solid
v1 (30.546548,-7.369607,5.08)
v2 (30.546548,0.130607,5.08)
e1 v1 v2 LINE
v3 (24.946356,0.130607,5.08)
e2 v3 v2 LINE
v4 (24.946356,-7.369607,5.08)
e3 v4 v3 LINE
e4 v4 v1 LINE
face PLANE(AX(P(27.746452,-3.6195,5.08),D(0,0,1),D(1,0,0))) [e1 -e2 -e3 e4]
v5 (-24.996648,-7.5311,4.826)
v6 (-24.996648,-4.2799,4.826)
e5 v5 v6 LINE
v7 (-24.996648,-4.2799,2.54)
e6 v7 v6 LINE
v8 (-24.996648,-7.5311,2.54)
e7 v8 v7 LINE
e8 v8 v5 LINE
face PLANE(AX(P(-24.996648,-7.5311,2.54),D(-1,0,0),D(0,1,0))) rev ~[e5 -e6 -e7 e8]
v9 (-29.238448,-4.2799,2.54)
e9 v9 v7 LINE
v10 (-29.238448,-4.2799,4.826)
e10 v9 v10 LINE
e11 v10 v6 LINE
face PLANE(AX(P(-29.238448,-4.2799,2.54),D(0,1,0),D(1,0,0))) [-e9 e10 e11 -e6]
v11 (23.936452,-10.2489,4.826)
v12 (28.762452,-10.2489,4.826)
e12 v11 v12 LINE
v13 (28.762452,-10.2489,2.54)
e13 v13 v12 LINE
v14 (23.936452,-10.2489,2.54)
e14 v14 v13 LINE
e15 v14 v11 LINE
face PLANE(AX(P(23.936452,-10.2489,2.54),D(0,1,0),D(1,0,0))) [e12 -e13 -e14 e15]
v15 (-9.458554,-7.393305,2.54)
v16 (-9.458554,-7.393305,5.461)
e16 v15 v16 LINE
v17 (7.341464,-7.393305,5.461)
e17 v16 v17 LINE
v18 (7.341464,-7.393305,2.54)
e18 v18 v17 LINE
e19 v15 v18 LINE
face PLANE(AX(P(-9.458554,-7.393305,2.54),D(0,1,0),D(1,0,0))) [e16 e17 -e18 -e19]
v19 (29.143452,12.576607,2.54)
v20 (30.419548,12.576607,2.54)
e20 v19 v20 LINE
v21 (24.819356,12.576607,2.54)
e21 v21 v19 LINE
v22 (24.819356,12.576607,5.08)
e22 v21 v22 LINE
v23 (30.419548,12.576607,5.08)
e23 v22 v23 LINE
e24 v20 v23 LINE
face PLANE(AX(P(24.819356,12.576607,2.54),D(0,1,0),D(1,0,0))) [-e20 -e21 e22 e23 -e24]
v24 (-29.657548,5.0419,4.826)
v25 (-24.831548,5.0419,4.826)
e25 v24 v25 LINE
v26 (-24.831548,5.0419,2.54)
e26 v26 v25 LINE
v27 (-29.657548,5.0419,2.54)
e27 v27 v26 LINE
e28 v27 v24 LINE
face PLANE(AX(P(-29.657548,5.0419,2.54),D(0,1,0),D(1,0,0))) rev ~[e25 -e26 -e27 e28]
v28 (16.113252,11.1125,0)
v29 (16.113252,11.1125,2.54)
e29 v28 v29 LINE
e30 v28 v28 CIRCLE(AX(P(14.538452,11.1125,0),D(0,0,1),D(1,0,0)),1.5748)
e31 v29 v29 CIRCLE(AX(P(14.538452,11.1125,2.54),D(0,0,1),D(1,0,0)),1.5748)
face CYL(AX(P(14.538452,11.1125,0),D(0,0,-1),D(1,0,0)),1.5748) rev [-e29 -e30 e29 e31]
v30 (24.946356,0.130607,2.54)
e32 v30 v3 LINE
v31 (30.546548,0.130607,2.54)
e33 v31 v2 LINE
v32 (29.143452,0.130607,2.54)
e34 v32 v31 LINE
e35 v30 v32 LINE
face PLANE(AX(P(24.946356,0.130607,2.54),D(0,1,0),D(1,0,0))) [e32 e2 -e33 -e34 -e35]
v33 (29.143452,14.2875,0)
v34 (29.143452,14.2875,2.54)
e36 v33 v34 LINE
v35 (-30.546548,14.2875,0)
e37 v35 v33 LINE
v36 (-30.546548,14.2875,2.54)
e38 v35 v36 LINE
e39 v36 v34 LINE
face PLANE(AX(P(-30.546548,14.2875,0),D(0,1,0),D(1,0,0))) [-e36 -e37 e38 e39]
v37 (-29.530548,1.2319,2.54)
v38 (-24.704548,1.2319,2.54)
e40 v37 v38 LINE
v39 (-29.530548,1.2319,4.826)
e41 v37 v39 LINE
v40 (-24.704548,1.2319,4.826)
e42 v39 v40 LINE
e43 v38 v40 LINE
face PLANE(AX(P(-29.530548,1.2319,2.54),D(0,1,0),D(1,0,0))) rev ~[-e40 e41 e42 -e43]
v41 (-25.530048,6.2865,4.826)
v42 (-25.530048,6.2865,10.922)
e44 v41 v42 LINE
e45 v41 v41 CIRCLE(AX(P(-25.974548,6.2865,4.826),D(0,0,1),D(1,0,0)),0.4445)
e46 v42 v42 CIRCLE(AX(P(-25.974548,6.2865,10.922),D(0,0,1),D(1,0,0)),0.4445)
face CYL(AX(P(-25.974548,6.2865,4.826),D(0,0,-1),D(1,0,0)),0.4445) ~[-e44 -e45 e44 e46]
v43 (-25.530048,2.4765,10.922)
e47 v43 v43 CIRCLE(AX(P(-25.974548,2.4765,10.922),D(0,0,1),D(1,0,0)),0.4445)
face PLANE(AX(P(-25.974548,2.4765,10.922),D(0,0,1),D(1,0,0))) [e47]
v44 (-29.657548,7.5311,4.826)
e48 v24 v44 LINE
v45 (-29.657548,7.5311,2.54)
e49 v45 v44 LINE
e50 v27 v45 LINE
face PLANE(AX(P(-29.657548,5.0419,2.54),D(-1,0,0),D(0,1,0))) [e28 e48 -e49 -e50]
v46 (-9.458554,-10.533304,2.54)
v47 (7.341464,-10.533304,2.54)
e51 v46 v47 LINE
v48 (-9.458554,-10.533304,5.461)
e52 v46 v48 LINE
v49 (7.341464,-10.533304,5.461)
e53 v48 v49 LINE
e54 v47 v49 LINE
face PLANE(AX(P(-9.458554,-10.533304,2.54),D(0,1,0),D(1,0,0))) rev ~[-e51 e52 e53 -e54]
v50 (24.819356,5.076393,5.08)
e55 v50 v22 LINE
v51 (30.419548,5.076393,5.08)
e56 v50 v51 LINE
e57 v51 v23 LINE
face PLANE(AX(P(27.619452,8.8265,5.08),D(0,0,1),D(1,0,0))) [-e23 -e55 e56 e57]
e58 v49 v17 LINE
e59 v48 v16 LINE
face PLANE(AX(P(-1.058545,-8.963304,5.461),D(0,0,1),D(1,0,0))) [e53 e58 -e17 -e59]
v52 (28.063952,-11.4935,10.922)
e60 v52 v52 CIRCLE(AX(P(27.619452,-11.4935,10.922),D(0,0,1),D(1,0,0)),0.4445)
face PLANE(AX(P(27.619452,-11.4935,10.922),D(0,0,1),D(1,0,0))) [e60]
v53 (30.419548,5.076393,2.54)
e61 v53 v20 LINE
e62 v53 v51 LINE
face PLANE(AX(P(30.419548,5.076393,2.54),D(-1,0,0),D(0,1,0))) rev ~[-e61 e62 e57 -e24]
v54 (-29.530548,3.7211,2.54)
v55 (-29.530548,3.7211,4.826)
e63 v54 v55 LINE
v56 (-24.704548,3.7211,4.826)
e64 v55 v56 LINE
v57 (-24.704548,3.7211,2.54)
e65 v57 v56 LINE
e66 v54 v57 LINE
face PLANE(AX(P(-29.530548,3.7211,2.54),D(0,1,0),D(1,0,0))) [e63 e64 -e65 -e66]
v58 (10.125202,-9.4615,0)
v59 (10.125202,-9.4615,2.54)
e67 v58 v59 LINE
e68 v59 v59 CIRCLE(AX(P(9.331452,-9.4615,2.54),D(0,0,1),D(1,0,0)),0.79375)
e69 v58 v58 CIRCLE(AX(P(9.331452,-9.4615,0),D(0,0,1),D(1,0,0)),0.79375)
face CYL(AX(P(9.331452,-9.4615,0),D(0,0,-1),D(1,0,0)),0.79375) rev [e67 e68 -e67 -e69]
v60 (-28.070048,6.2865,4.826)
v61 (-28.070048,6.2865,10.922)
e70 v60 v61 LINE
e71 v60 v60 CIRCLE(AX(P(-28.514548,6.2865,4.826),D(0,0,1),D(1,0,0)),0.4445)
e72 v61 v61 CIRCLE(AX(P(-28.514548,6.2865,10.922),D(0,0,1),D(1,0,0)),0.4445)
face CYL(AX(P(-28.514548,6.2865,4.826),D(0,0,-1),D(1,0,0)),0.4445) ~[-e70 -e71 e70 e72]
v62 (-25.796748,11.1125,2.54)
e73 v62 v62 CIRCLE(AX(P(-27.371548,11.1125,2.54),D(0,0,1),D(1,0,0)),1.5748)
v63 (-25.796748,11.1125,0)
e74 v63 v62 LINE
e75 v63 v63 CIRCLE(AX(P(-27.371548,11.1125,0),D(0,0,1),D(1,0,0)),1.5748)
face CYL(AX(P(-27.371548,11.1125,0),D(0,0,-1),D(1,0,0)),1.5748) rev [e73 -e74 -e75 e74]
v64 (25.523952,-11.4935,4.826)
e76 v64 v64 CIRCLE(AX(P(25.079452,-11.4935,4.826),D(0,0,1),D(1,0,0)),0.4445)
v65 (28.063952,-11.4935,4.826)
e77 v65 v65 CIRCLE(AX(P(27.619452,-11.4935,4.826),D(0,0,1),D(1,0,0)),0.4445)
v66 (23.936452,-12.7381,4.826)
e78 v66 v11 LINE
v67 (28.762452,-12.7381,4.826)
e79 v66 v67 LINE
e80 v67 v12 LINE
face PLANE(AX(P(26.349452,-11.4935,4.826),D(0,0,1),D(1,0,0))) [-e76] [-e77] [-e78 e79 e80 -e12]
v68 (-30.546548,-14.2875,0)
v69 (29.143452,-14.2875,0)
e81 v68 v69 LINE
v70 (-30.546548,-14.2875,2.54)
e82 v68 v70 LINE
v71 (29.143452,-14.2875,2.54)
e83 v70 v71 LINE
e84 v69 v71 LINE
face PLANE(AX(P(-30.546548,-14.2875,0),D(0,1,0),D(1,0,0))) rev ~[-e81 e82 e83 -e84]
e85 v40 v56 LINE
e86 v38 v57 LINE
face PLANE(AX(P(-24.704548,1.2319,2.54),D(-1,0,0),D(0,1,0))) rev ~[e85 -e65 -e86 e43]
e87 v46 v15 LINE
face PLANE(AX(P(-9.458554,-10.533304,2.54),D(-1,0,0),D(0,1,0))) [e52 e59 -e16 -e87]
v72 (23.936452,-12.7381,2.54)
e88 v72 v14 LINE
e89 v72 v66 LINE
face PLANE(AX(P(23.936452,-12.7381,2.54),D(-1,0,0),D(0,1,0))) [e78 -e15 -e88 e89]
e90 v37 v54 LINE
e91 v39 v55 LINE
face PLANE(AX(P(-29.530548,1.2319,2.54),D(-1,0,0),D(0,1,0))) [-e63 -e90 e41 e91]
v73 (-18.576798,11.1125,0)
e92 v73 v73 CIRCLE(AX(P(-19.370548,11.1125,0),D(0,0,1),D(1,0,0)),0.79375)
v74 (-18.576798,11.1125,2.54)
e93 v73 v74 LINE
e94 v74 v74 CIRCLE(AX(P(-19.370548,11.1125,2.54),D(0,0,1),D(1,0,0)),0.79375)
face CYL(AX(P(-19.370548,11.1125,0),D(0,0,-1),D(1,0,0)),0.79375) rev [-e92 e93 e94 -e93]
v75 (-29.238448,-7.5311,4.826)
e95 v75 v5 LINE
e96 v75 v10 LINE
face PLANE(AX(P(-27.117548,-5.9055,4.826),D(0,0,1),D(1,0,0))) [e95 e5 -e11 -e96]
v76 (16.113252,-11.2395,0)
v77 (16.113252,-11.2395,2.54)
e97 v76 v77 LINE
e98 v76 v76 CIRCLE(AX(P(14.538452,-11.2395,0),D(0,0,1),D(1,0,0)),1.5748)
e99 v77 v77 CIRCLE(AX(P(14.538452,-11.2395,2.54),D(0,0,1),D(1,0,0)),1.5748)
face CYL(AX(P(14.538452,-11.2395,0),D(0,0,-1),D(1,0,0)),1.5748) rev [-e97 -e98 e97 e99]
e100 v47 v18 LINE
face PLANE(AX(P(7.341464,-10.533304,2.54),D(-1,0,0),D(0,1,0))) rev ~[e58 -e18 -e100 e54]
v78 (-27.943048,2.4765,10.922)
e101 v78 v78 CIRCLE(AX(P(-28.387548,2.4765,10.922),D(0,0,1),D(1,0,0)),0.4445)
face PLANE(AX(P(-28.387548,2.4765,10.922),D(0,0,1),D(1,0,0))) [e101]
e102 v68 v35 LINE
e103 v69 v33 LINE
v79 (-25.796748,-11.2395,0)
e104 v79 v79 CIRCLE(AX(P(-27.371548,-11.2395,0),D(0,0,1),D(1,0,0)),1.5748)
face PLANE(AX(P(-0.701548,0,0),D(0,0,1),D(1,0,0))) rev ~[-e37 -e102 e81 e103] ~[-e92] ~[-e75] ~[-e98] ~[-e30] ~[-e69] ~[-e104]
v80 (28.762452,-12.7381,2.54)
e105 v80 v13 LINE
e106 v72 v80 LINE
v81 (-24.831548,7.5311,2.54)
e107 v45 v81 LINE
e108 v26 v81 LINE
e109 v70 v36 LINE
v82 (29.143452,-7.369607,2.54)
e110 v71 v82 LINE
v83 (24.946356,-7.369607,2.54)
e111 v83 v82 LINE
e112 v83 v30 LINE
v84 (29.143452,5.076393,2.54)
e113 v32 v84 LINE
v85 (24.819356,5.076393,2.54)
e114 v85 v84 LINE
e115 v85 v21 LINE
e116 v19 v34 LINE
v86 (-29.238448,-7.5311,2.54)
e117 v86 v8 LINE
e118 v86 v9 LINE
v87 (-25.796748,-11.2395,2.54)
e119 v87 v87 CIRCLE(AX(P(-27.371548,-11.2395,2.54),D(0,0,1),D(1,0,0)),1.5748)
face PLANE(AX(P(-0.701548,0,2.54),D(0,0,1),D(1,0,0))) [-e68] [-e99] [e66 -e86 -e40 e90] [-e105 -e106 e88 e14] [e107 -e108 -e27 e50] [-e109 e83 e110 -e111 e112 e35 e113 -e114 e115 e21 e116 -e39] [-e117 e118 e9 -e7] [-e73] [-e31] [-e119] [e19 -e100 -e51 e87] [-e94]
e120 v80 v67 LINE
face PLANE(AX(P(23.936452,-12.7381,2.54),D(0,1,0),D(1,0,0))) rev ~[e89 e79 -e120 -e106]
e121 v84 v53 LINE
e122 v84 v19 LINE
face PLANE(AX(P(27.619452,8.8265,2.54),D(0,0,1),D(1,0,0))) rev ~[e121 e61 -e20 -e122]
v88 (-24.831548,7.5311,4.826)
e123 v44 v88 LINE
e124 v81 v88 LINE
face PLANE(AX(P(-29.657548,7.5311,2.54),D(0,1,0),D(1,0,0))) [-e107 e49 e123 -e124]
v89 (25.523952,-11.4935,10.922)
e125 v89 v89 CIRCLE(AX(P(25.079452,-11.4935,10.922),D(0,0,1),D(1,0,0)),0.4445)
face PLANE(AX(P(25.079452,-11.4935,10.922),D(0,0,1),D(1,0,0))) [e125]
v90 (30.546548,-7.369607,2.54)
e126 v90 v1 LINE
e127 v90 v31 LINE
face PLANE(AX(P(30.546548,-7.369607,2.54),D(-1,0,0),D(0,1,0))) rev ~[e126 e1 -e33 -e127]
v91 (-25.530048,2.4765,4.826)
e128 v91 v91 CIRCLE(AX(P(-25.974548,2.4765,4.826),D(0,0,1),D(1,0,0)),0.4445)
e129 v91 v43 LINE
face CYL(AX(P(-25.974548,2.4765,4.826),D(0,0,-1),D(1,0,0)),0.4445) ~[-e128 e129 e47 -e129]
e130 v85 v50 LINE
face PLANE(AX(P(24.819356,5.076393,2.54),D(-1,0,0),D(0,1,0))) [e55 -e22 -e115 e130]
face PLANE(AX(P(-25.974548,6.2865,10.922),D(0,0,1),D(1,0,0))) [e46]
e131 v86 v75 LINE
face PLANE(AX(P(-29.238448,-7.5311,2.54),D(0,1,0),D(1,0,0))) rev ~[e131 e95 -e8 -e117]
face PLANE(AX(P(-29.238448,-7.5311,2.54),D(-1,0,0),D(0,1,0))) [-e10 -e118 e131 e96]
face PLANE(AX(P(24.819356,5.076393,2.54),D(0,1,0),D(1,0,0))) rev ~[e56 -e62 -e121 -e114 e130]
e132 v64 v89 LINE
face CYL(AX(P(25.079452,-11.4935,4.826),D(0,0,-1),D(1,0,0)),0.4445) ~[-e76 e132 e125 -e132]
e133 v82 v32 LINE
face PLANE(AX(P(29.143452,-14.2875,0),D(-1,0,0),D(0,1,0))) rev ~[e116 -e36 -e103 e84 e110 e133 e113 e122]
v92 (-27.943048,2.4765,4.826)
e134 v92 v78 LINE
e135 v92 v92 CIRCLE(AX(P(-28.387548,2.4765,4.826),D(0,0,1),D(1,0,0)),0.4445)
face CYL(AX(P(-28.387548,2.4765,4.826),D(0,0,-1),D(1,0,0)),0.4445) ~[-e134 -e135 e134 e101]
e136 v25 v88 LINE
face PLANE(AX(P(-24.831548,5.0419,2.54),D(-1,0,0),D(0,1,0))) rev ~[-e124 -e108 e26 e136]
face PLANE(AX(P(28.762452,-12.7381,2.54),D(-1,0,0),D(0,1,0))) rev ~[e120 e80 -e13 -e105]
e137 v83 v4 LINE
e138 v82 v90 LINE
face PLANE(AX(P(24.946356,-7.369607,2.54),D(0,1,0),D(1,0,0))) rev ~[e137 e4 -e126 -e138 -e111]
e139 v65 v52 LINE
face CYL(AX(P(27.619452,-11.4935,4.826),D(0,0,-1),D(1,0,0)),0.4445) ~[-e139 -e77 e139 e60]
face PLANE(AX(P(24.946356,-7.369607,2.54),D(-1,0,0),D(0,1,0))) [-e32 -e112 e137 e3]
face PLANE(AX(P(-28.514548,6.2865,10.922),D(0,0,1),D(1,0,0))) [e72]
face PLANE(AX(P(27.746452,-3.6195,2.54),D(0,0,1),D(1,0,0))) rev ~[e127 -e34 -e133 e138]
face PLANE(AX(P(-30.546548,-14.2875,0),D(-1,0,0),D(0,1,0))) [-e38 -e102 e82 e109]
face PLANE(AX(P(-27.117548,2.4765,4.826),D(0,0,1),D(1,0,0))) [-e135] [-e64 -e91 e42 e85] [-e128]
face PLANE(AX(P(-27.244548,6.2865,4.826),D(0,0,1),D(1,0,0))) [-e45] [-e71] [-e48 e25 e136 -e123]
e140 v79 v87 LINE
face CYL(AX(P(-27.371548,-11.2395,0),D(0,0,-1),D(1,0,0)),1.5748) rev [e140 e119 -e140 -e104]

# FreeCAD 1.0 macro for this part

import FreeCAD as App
import Part
import Sketcher

V = App.Vector
Q = App.Units.Quantity


def add_polygon(sketch, points):
    """Adds a closed chain of lines whose ends are joined by coincident constraints."""
    first, n = sketch.GeometryCount, len(points)
    for a, b in zip(points, points[1:] + points[:1]):
        sketch.addGeometry(Part.LineSegment(App.Vector(*a, 0), App.Vector(*b, 0)), False)
    for i in range(n):
        sketch.addConstraint(Sketcher.Constraint("Coincident", first + i, 2, first + (i + 1) % n, 1))

doc = App.newDocument("Part")
body = doc.addObject("PartDesign::Body", "Body")

sketch1 = body.newObject("Sketcher::SketchObject", "Sketch")
sketch1.AttachmentSupport = (doc.getObject("XY_Plane"), [""])
sketch1.MapMode = "FlatFace"
add_polygon(sketch1, [(-30.5, 14.3), (-30.5, -14.3), (29.1, -14.3), (29.1, 14.3)])
sketch1.addGeometry(Part.Circle(V(-27.4, -11.2, 0), V(0, 0, 1), 1.6), False)
sketch1.addGeometry(Part.Circle(V(14.5, -11.2, 0), V(0, 0, 1), 1.6), False)
sketch1.addGeometry(Part.Circle(V(9.3, -9.5, 0), V(0, 0, 1), 0.8), False)
sketch1.addGeometry(Part.Circle(V(-27.4, 11.1, 0), V(0, 0, 1), 1.6), False)
sketch1.addGeometry(Part.Circle(V(-19.4, 11.1, 0), V(0, 0, 1), 0.8), False)
sketch1.addGeometry(Part.Circle(V(14.5, 11.1, 0), V(0, 0, 1), 1.6), False)
sketch1.addConstraint(Sketcher.Constraint("Vertical", 0))
sketch1.addConstraint(Sketcher.Constraint("Horizontal", 1))
sketch1.addConstraint(Sketcher.Constraint("Vertical", 2))
sketch1.addConstraint(Sketcher.Constraint("Horizontal", 3))
sketch1.addConstraint(Sketcher.Constraint("Equal", 4, 5))
sketch1.addConstraint(Sketcher.Constraint("Equal", 5, 7))
sketch1.addConstraint(Sketcher.Constraint("Equal", 6, 8))
sketch1.addConstraint(Sketcher.Constraint("Equal", 7, 9))
sketch1.addConstraint(Sketcher.Constraint("Horizontal", 4, 3, 5, 3))
sketch1.addConstraint(Sketcher.Constraint("Horizontal", 7, 3, 8, 3))
sketch1.addConstraint(Sketcher.Constraint("Horizontal", 8, 3, 9, 3))
sketch1.addConstraint(Sketcher.Constraint("Vertical", 4, 3, 7, 3))
sketch1.addConstraint(Sketcher.Constraint("Vertical", 5, 3, 9, 3))
sketch1.addConstraint(Sketcher.Constraint("Diameter", 4, Q("0.124 in")))
sketch1.addConstraint(Sketcher.Constraint("Diameter", 6, Q("0.0625 in")))
sketch1.addConstraint(Sketcher.Constraint("DistanceY", 0, 2, 7, 3, Q("1 in")))
sketch1.addConstraint(Sketcher.Constraint("DistanceX", 1, 1, 1, 2, Q("2.35 in")))
sketch1.addConstraint(Sketcher.Constraint("DistanceY", 0, 2, 0, 1, Q("1.125 in")))
sketch1.addConstraint(Sketcher.Constraint("DistanceX", 4, 3, 5, 3, Q("1.65 in")))
sketch1.addConstraint(Sketcher.Constraint("DistanceY", 5, 3, 6, 3, Q("0.07 in")))
sketch1.addConstraint(Sketcher.Constraint("DistanceY", 4, 3, 7, 3, Q("0.88 in")))
sketch1.addConstraint(Sketcher.Constraint("DistanceX", 8, 3, 6, 3, Q("1.13 in")))
sketch1.addConstraint(Sketcher.Constraint("DistanceX", 0, 2, 8, 3, Q("0.44 in")))
sketch1.addConstraint(Sketcher.Constraint("DistanceY", -1, 1, 7, 3, Q("0.4375 in")))
sketch1.addConstraint(Sketcher.Constraint("DistanceX", 6, 3, 5, 3, Q("0.205 in")))
sketch1.addConstraint(Sketcher.Constraint("DistanceX", 4, 3, -1, 1, 27.371548))
pad1 = body.newObject("PartDesign::Pad", "Pad")
pad1.Profile = sketch1
pad1.Length = Q("0.1 in")

sketch2 = body.newObject("Sketcher::SketchObject", "Sketch001")
sketch2.AttachmentSupport = (doc.getObject("XY_Plane"), [""])
sketch2.MapMode = "FlatFace"
sketch2.AttachmentOffset = App.Placement(V(0, 0, 0.1 * 25.4), App.Rotation())
add_polygon(sketch2, [(25, 13), (25, 5), (30, 5), (30, 13)])
add_polygon(sketch2, [(25, 0), (25, -7), (31, -7), (31, 0)])
sketch2.addConstraint(Sketcher.Constraint("Vertical", 0))
sketch2.addConstraint(Sketcher.Constraint("Horizontal", 1))
sketch2.addConstraint(Sketcher.Constraint("Vertical", 2))
sketch2.addConstraint(Sketcher.Constraint("Horizontal", 3))
sketch2.addConstraint(Sketcher.Constraint("Vertical", 4))
sketch2.addConstraint(Sketcher.Constraint("Horizontal", 5))
sketch2.addConstraint(Sketcher.Constraint("Vertical", 6))
sketch2.addConstraint(Sketcher.Constraint("Horizontal", 7))
sketch2.addConstraint(Sketcher.Constraint("Equal", 3, 5))
sketch2.addConstraint(Sketcher.Constraint("Equal", 2, 4))
sketch2.addConstraint(Sketcher.Constraint("DistanceY", 4, 2, 0, 2, Q("0.49 in")))
sketch2.addConstraint(Sketcher.Constraint("DistanceX", 0, 2, 4, 2, Q("0.005 in")))
sketch2.addConstraint(Sketcher.Constraint("DistanceX", 1, 1, 1, 2, 5.600192))
sketch2.addConstraint(Sketcher.Constraint("DistanceY", 0, 2, 0, 1, 7.500214))
sketch2.addConstraint(Sketcher.Constraint("DistanceX", -1, 1, 5, 2, 30.546548))
sketch2.addConstraint(Sketcher.Constraint("DistanceY", -1, 1, 0, 2, 5.076393))
pad2 = body.newObject("PartDesign::Pad", "Pad001")
pad2.Profile = sketch2
pad2.Length = Q("0.1 in")

sketch3 = body.newObject("Sketcher::SketchObject", "Sketch002")
sketch3.AttachmentSupport = (doc.getObject("XY_Plane"), [""])
sketch3.MapMode = "FlatFace"
sketch3.AttachmentOffset = App.Placement(V(0, 0, 0.1 * 25.4), App.Rotation())
add_polygon(sketch3, [(-9.5, -7.4), (-9.5, -10.5), (7.3, -10.5), (7.3, -7.4)])
sketch3.addConstraint(Sketcher.Constraint("Vertical", 0))
sketch3.addConstraint(Sketcher.Constraint("Horizontal", 1))
sketch3.addConstraint(Sketcher.Constraint("Vertical", 2))
sketch3.addConstraint(Sketcher.Constraint("Horizontal", 3))
sketch3.addConstraint(Sketcher.Constraint("DistanceY", 0, 2, 0, 1, 3.139999))
sketch3.addConstraint(Sketcher.Constraint("DistanceX", 1, 1, 1, 2, 16.800018))
sketch3.addConstraint(Sketcher.Constraint("DistanceX", 0, 2, -1, 1, 9.458554))
sketch3.addConstraint(Sketcher.Constraint("DistanceY", 0, 2, -1, 1, 10.533304))
pad3 = body.newObject("PartDesign::Pad", "Pad002")
pad3.Profile = sketch3
pad3.Length = Q("0.115 in")

sketch4 = body.newObject("Sketcher::SketchObject", "Sketch003")
sketch4.AttachmentSupport = (doc.getObject("XY_Plane"), [""])
sketch4.MapMode = "FlatFace"
sketch4.AttachmentOffset = App.Placement(V(0, 0, 0.1 * 25.4), App.Rotation())
add_polygon(sketch4, [(23.9, -10.2), (23.9, -12.7), (28.8, -12.7), (28.8, -10.2)])
add_polygon(sketch4, [(-29.7, 7.5), (-29.7, 5), (-24.8, 5), (-24.8, 7.5)])
add_polygon(sketch4, [(-29.5, 3.7), (-29.5, 1.2), (-24.7, 1.2), (-24.7, 3.7)])
add_polygon(sketch4, [(-29.2, -4.3), (-29.2, -7.5), (-25, -7.5), (-25, -4.3)])
sketch4.addConstraint(Sketcher.Constraint("Vertical", 0))
sketch4.addConstraint(Sketcher.Constraint("Horizontal", 1))
sketch4.addConstraint(Sketcher.Constraint("Vertical", 2))
sketch4.addConstraint(Sketcher.Constraint("Horizontal", 3))
sketch4.addConstraint(Sketcher.Constraint("Vertical", 4))
sketch4.addConstraint(Sketcher.Constraint("Horizontal", 5))
sketch4.addConstraint(Sketcher.Constraint("Vertical", 6))
sketch4.addConstraint(Sketcher.Constraint("Horizontal", 7))
sketch4.addConstraint(Sketcher.Constraint("Vertical", 8))
sketch4.addConstraint(Sketcher.Constraint("Horizontal", 9))
sketch4.addConstraint(Sketcher.Constraint("Vertical", 10))
sketch4.addConstraint(Sketcher.Constraint("Horizontal", 11))
sketch4.addConstraint(Sketcher.Constraint("Vertical", 12))
sketch4.addConstraint(Sketcher.Constraint("Horizontal", 13))
sketch4.addConstraint(Sketcher.Constraint("Vertical", 14))
sketch4.addConstraint(Sketcher.Constraint("Horizontal", 15))
sketch4.addConstraint(Sketcher.Constraint("Equal", 3, 5))
sketch4.addConstraint(Sketcher.Constraint("Equal", 7, 9))
sketch4.addConstraint(Sketcher.Constraint("Equal", 2, 4))
sketch4.addConstraint(Sketcher.Constraint("Equal", 6, 8))
sketch4.addConstraint(Sketcher.Constraint("DistanceX", 1, 1, 1, 2, Q("0.19 in")))
sketch4.addConstraint(Sketcher.Constraint("DistanceY", 0, 2, 4, 2, Q("0.7 in")))
sketch4.addConstraint(Sketcher.Constraint("DistanceX", 4, 2, 2, 2, Q("2.3 in")))
sketch4.addConstraint(Sketcher.Constraint("DistanceX", 13, 1, 13, 2, Q("0.167 in")))
sketch4.addConstraint(Sketcher.Constraint("DistanceY", 0, 2, 0, 1, Q("0.098 in")))
sketch4.addConstraint(Sketcher.Constraint("DistanceY", 12, 2, 12, 1, Q("0.128 in")))
sketch4.addConstraint(Sketcher.Constraint("DistanceY", 8, 2, 4, 2, Q("0.15 in")))
sketch4.addConstraint(Sketcher.Constraint("DistanceX", 4, 2, 8, 2, Q("0.005 in")))
sketch4.addConstraint(Sketcher.Constraint("DistanceY", 12, 2, 8, 2, Q("0.345 in")))
sketch4.addConstraint(Sketcher.Constraint("DistanceY", 0, 2, -1, 1, Q("0.5015 in")))
sketch4.addConstraint(Sketcher.Constraint("DistanceX", 8, 2, 12, 2, Q("0.0115 in")))
sketch4.addConstraint(Sketcher.Constraint("DistanceX", -1, 1, 0, 2, 23.936452))
pad4 = body.newObject("PartDesign::Pad", "Pad003")
pad4.Profile = sketch4
pad4.Length = Q("0.09 in")

sketch5 = body.newObject("Sketcher::SketchObject", "Sketch004")
sketch5.AttachmentSupport = (doc.getObject("XY_Plane"), [""])
sketch5.MapMode = "FlatFace"
sketch5.AttachmentOffset = App.Placement(V(0, 0, 0.19 * 25.4), App.Rotation())
sketch5.addGeometry(Part.Circle(V(-28.51, 6.29, 0), V(0, 0, 1), 0.44), False)
sketch5.addGeometry(Part.Circle(V(-25.97, 6.29, 0), V(0, 0, 1), 0.44), False)
sketch5.addGeometry(Part.Circle(V(-28.39, 2.48, 0), V(0, 0, 1), 0.44), False)
sketch5.addGeometry(Part.Circle(V(-25.97, 2.48, 0), V(0, 0, 1), 0.44), False)
sketch5.addGeometry(Part.Circle(V(27.62, -11.49, 0), V(0, 0, 1), 0.44), False)
sketch5.addGeometry(Part.Circle(V(25.08, -11.49, 0), V(0, 0, 1), 0.44), False)
sketch5.addConstraint(Sketcher.Constraint("Equal", 0, 1))
sketch5.addConstraint(Sketcher.Constraint("Equal", 1, 2))
sketch5.addConstraint(Sketcher.Constraint("Equal", 2, 3))
sketch5.addConstraint(Sketcher.Constraint("Equal", 3, 4))
sketch5.addConstraint(Sketcher.Constraint("Equal", 4, 5))
sketch5.addConstraint(Sketcher.Constraint("Horizontal", 0, 3, 1, 3))
sketch5.addConstraint(Sketcher.Constraint("Horizontal", 2, 3, 3, 3))
sketch5.addConstraint(Sketcher.Constraint("Horizontal", 4, 3, 5, 3))
sketch5.addConstraint(Sketcher.Constraint("Vertical", 1, 3, 3, 3))
sketch5.addConstraint(Sketcher.Constraint("Diameter", 0, Q("0.035 in")))
sketch5.addConstraint(Sketcher.Constraint("DistanceX", 0, 3, 1, 3, Q("0.1 in")))
sketch5.addConstraint(Sketcher.Constraint("DistanceY", 4, 3, 1, 3, Q("0.7 in")))
sketch5.addConstraint(Sketcher.Constraint("DistanceX", 5, 3, 4, 3, Q("0.1 in")))
sketch5.addConstraint(Sketcher.Constraint("DistanceY", 2, 3, 0, 3, Q("0.15 in")))
sketch5.addConstraint(Sketcher.Constraint("DistanceX", 3, 3, 4, 3, Q("2.11 in")))
sketch5.addConstraint(Sketcher.Constraint("DistanceX", 0, 3, 2, 3, Q("0.005 in")))
sketch5.addConstraint(Sketcher.Constraint("DistanceY", -1, 1, 0, 3, Q("0.2475 in")))
sketch5.addConstraint(Sketcher.Constraint("DistanceX", 0, 3, -1, 1, 28.514548))
pad5 = body.newObject("PartDesign::Pad", "Pad004")
pad5.Profile = sketch5
pad5.Length = Q("0.24 in")

doc.recompute()
